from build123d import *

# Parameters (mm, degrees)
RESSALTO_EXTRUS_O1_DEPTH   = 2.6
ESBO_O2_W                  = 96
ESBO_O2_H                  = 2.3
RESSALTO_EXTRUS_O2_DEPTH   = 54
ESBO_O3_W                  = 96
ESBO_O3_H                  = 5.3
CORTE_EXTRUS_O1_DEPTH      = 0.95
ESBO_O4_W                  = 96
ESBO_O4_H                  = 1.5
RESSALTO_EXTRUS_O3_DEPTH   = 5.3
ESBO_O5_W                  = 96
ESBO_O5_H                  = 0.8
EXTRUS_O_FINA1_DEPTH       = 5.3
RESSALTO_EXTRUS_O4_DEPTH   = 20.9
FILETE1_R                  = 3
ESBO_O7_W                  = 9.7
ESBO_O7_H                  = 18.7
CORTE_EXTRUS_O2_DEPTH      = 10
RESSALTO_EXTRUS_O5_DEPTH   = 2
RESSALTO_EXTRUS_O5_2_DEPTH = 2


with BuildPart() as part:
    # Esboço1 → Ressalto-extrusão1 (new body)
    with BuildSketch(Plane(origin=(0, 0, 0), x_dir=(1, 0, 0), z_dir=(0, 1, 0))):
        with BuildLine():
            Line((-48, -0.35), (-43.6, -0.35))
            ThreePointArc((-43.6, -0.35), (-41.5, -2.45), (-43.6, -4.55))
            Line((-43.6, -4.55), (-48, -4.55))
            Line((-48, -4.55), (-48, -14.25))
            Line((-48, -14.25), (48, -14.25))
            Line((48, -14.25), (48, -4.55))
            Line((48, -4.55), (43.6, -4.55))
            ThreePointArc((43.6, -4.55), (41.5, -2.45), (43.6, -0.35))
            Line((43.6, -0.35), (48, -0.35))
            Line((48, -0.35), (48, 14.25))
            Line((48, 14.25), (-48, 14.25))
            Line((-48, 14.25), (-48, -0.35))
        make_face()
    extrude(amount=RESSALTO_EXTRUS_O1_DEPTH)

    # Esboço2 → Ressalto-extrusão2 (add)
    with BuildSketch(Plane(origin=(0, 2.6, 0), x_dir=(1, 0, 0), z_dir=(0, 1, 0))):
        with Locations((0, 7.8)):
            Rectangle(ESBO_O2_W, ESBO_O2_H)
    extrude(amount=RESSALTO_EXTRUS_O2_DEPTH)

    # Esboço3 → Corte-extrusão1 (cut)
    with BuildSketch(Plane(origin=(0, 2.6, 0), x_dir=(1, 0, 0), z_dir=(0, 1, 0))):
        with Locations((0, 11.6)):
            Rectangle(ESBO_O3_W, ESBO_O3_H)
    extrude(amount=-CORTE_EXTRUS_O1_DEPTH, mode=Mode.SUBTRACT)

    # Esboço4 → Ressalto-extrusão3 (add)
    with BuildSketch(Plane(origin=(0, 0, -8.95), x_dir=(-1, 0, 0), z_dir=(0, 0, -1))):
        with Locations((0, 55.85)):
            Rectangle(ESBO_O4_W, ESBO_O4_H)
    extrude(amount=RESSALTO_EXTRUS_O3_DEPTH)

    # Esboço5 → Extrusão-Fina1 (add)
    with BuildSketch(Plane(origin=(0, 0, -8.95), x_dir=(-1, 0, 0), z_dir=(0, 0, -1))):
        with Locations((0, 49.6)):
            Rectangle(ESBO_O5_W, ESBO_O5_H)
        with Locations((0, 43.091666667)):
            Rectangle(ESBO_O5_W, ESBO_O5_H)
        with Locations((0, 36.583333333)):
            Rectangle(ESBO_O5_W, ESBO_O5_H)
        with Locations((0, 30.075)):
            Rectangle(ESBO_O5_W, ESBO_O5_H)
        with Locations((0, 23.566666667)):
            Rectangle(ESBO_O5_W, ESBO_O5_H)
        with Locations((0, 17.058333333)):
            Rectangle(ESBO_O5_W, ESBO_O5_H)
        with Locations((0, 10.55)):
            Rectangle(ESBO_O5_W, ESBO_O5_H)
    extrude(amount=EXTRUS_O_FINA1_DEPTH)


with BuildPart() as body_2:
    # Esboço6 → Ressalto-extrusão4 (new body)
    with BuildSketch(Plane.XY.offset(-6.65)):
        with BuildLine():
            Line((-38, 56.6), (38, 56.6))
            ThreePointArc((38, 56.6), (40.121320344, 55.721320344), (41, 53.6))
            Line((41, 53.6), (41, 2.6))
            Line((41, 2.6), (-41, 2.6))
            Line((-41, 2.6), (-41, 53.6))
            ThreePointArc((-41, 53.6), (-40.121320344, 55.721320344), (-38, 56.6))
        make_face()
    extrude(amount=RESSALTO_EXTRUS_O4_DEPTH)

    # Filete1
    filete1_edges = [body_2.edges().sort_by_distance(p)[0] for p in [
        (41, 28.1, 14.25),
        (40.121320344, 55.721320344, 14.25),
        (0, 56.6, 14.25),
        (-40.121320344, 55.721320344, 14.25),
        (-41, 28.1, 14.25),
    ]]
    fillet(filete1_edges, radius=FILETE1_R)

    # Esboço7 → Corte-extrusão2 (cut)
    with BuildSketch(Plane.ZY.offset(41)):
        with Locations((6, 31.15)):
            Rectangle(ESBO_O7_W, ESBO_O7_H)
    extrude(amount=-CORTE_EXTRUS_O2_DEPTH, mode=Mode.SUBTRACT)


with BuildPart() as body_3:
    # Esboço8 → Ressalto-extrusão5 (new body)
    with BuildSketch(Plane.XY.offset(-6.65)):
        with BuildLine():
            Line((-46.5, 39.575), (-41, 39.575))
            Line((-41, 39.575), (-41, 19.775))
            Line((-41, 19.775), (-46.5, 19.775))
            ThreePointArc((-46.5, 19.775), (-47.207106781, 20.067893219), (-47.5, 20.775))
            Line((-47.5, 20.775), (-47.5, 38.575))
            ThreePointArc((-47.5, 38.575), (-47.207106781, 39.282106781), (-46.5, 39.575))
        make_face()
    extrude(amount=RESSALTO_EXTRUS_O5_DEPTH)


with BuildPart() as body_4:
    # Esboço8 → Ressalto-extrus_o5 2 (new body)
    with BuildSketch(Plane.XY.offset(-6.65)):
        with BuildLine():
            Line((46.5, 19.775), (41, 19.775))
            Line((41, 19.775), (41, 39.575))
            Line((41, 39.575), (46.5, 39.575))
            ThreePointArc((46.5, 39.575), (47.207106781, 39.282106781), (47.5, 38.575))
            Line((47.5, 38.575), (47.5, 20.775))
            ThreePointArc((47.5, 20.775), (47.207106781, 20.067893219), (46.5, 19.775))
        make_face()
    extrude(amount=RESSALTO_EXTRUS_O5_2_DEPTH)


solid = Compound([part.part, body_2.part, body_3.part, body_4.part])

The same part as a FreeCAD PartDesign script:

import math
import FreeCAD as App
import Part
import Sketcher

V = App.Vector


def edges_at(feature, points):
    """Names of the edges that pass closest to the given points."""
    edges = feature.Shape.Edges
    near = lambda p: min(range(len(edges)), key=lambda i: edges[i].distToShape(Part.Vertex(*p))[0])
    return sorted({f"Edge{near(p) + 1}" for p in points})


def add_polygon(sketch, points):
    """Adds a closed chain of lines whose ends are joined by coincident constraints."""
    first, n = sketch.GeometryCount, len(points)
    for a, b in zip(points, points[1:] + points[:1]):
        sketch.addGeometry(Part.LineSegment(App.Vector(*a, 0), App.Vector(*b, 0)), False)
    for i in range(n):
        sketch.addConstraint(Sketcher.Constraint("Coincident", first + i, 2, first + (i + 1) % n, 1))

doc = App.newDocument("Part")
body = doc.addObject("PartDesign::Body", "Body")

# Sketch on XZ plane
sketch1 = body.newObject("Sketcher::SketchObject", "Sketch")
sketch1.AttachmentSupport = (doc.getObject("XZ_Plane"), [""])
sketch1.MapMode = "FlatFace"
sketch1.addGeometry([
    Part.LineSegment(V(-48, 0.3, 0), V(-43.6, 0.3, 0)),  # 0
    Part.ArcOfCircle(Part.Circle(V(-43.6, 2.5, 0), V(0, 0, 1), 2.1), math.radians(-90), math.radians(90)),  # 1
    Part.LineSegment(V(-43.6, 4.5, 0), V(-48, 4.5, 0)),  # 2
    Part.LineSegment(V(-48, 4.5, 0), V(-48, 14.2, 0)),  # 3
    Part.LineSegment(V(-48, 14.2, 0), V(48, 14.2, 0)),  # 4
    Part.LineSegment(V(48, 14.2, 0), V(48, 4.5, 0)),  # 5
    Part.LineSegment(V(48, 4.5, 0), V(43.6, 4.5, 0)),  # 6
    Part.ArcOfCircle(Part.Circle(V(43.6, 2.5, 0), V(0, 0, 1), 2.1), math.radians(90), math.radians(270)),  # 7
    Part.LineSegment(V(43.6, 0.3, 0), V(48, 0.3, 0)),  # 8
    Part.LineSegment(V(48, 0.3, 0), V(48, -14.2, 0)),  # 9
    Part.LineSegment(V(48, -14.2, 0), V(-48, -14.2, 0)),  # 10
    Part.LineSegment(V(-48, -14.2, 0), V(-48, 0.3, 0)),  # 11
], False)
sketch1.addConstraint([
    Sketcher.Constraint("Tangent", 0, 2, 1, 1),
    Sketcher.Constraint("Tangent", 1, 2, 2, 1),
    Sketcher.Constraint("Coincident", 2, 2, 3, 1),
    Sketcher.Constraint("Coincident", 3, 2, 4, 1),
    Sketcher.Constraint("Coincident", 4, 2, 5, 1),
    Sketcher.Constraint("Coincident", 5, 2, 6, 1),
    Sketcher.Constraint("Tangent", 6, 2, 7, 1),
    Sketcher.Constraint("Tangent", 7, 2, 8, 1),
    Sketcher.Constraint("Coincident", 8, 2, 9, 1),
    Sketcher.Constraint("Coincident", 9, 2, 10, 1),
    Sketcher.Constraint("Coincident", 10, 2, 11, 1),
    Sketcher.Constraint("Coincident", 11, 2, 0, 1),
    Sketcher.Constraint("Horizontal", 0),
    Sketcher.Constraint("Horizontal", 2),
    Sketcher.Constraint("Vertical", 3),
    Sketcher.Constraint("Horizontal", 4),
    Sketcher.Constraint("Vertical", 5),
    Sketcher.Constraint("Horizontal", 6),
    Sketcher.Constraint("Horizontal", 8),
    Sketcher.Constraint("Vertical", 9),
    Sketcher.Constraint("Horizontal", 10),
    Sketcher.Constraint("Vertical", 11),
    Sketcher.Constraint("Equal", 1, 7),
    Sketcher.Constraint("Symmetric", 3, 2, 9, 2, -1, 1),
    Sketcher.Constraint("Symmetric", 1, 3, 7, 3, -2),
    Sketcher.Constraint("Vertical", 5, 2, 8, 2),
    Sketcher.Constraint("Vertical", 3, 2, 10, 2),
    Sketcher.Constraint("Radius", 1, 2.1),
    Sketcher.Constraint("DistanceX", 4, 1, 4, 2, 96.0),
    Sketcher.Constraint("DistanceX", 0, 1, 0, 2, 4.4),
    Sketcher.Constraint("DistanceY", 3, 1, 3, 2, 9.7),
    Sketcher.Constraint("DistanceY", 9, 2, 9, 1, 14.6),
])
pad1 = body.newObject("PartDesign::Pad", "Pad")
pad1.Profile = sketch1
pad1.Length = 2.6
pad1.Reversed = True

# Sketch on XZ plane
sketch2 = body.newObject("Sketcher::SketchObject", "Sketch001")
sketch2.AttachmentSupport = (doc.getObject("XZ_Plane"), [""])
sketch2.MapMode = "FlatFace"
sketch2.AttachmentOffset = App.Placement(V(0, 0, -2.6), App.Rotation())
add_polygon(sketch2, [(-48, -8.9), (-48, -6.7), (48, -6.7), (48, -8.9)])  # lines 0-3
sketch2.addConstraint([
    Sketcher.Constraint("Vertical", 0),
    Sketcher.Constraint("Horizontal", 1),
    Sketcher.Constraint("Vertical", 2),
    Sketcher.Constraint("Horizontal", 3),
    Sketcher.Constraint("DistanceX", 1, 1, 1, 2, 96.0),
    Sketcher.Constraint("DistanceY", 0, 1, 0, 2, 2.3),
    Sketcher.Constraint("DistanceX", 0, 2, -1, 1, 48.0),
    Sketcher.Constraint("DistanceY", 0, 2, -1, 1, 6.65),
])
pad2 = body.newObject("PartDesign::Pad", "Pad001")
pad2.Profile = sketch2
pad2.Length = 54
pad2.Reversed = True

# Sketch on XZ plane
sketch3 = body.newObject("Sketcher::SketchObject", "Sketch002")
sketch3.AttachmentSupport = (doc.getObject("XZ_Plane"), [""])
sketch3.MapMode = "FlatFace"
sketch3.AttachmentOffset = App.Placement(V(0, 0, -2.6), App.Rotation())
add_polygon(sketch3, [(-48, -14), (-48, -9), (48, -9), (48, -14)])  # lines 0-3
sketch3.addConstraint([
    Sketcher.Constraint("Vertical", 0),
    Sketcher.Constraint("Horizontal", 1),
    Sketcher.Constraint("Vertical", 2),
    Sketcher.Constraint("Horizontal", 3),
    Sketcher.Constraint("DistanceX", 1, 1, 1, 2, 96.0),
    Sketcher.Constraint("DistanceY", 0, 1, 0, 2, 5.3),
    Sketcher.Constraint("DistanceX", 0, 2, -1, 1, 48.0),
    Sketcher.Constraint("DistanceY", 0, 2, -1, 1, 8.95),
])
pocket1 = body.newObject("PartDesign::Pocket", "Pocket")
pocket1.Profile = sketch3
pocket1.Length = 0.95
pocket1.Reversed = True

# Sketch on XY plane
sketch4 = body.newObject("Sketcher::SketchObject", "Sketch003")
sketch4.AttachmentSupport = (doc.getObject("XY_Plane"), [""])
sketch4.MapMode = "FlatFace"
sketch4.AttachmentOffset = App.Placement(V(0, 0, -8.95), App.Rotation())
add_polygon(sketch4, [(48, 56.6), (48, 55.1), (-48, 55.1), (-48, 56.6)])  # lines 0-3
sketch4.addConstraint([
    Sketcher.Constraint("Vertical", 0),
    Sketcher.Constraint("Horizontal", 1),
    Sketcher.Constraint("Vertical", 2),
    Sketcher.Constraint("Horizontal", 3),
    Sketcher.Constraint("DistanceX", 1, 2, 1, 1, 96.0),
    Sketcher.Constraint("DistanceY", 0, 2, 0, 1, 1.5),
    Sketcher.Constraint("DistanceX", -1, 1, 0, 2, 48.0),
    Sketcher.Constraint("DistanceY", -1, 1, 0, 2, 55.1),
])
pad3 = body.newObject("PartDesign::Pad", "Pad002")
pad3.Profile = sketch4
pad3.Length = 5.3
pad3.Reversed = True

# Sketch on XY plane
sketch5 = body.newObject("Sketcher::SketchObject", "Sketch004")
sketch5.AttachmentSupport = (doc.getObject("XY_Plane"), [""])
sketch5.MapMode = "FlatFace"
sketch5.AttachmentOffset = App.Placement(V(0, 0, -8.95), App.Rotation())
add_polygon(sketch5, [(48, 50), (48, 49.2), (-48, 49.2), (-48, 50)])  # lines 0-3
add_polygon(sketch5, [(48, 43.5), (48, 42.7), (-48, 42.7), (-48, 43.5)])  # lines 4-7
add_polygon(sketch5, [(48, 37), (48, 36.2), (-48, 36.2), (-48, 37)])  # lines 8-11
add_polygon(sketch5, [(48, 30.5), (48, 29.7), (-48, 29.7), (-48, 30.5)])  # lines 12-15
add_polygon(sketch5, [(48, 24), (48, 23.2), (-48, 23.2), (-48, 24)])  # lines 16-19
add_polygon(sketch5, [(48, 17.5), (48, 16.7), (-48, 16.7), (-48, 17.5)])  # lines 20-23
add_polygon(sketch5, [(48, 10.9), (48, 10.2), (-48, 10.2), (-48, 10.9)])  # lines 24-27
sketch5.addConstraint([
    Sketcher.Constraint("Vertical", 0),
    Sketcher.Constraint("Horizontal", 1),
    Sketcher.Constraint("Vertical", 2),
    Sketcher.Constraint("Horizontal", 3),
    Sketcher.Constraint("Vertical", 4),
    Sketcher.Constraint("Horizontal", 5),
    Sketcher.Constraint("Vertical", 6),
    Sketcher.Constraint("Horizontal", 7),
    Sketcher.Constraint("Vertical", 8),
    Sketcher.Constraint("Horizontal", 9),
    Sketcher.Constraint("Vertical", 10),
    Sketcher.Constraint("Horizontal", 11),
    Sketcher.Constraint("Vertical", 12),
    Sketcher.Constraint("Horizontal", 13),
    Sketcher.Constraint("Vertical", 14),
    Sketcher.Constraint("Horizontal", 15),
    Sketcher.Constraint("Vertical", 16),
    Sketcher.Constraint("Horizontal", 17),
    Sketcher.Constraint("Vertical", 18),
    Sketcher.Constraint("Horizontal", 19),
    Sketcher.Constraint("Vertical", 20),
    Sketcher.Constraint("Horizontal", 21),
    Sketcher.Constraint("Vertical", 22),
    Sketcher.Constraint("Horizontal", 23),
    Sketcher.Constraint("Vertical", 24),
    Sketcher.Constraint("Horizontal", 25),
    Sketcher.Constraint("Vertical", 26),
    Sketcher.Constraint("Horizontal", 27),
    Sketcher.Constraint("Vertical", 3, 2, 4, 2),
    Sketcher.Constraint("Vertical", 2, 2, 5, 2),
    Sketcher.Constraint("Vertical", 7, 2, 8, 2),
    Sketcher.Constraint("Vertical", 6, 2, 9, 2),
    Sketcher.Constraint("Vertical", 11, 2, 12, 2),
    Sketcher.Constraint("Vertical", 10, 2, 13, 2),
    Sketcher.Constraint("Vertical", 15, 2, 16, 2),
    Sketcher.Constraint("Vertical", 14, 2, 17, 2),
    Sketcher.Constraint("Vertical", 19, 2, 20, 2),
    Sketcher.Constraint("Vertical", 18, 2, 21, 2),
    Sketcher.Constraint("Vertical", 23, 2, 24, 2),
    Sketcher.Constraint("Vertical", 22, 2, 25, 2),
    Sketcher.Constraint("Equal", 2, 4),
    Sketcher.Constraint("Equal", 6, 8),
    Sketcher.Constraint("Equal", 10, 12),
    Sketcher.Constraint("Equal", 14, 16),
    Sketcher.Constraint("Equal", 18, 20),
    Sketcher.Constraint("Equal", 22, 24),
    Sketcher.Constraint("DistanceX", 1, 2, 1, 1, 96.0),
    Sketcher.Constraint("DistanceY", 0, 2, 0, 1, 0.8),
    Sketcher.Constraint("DistanceX", -1, 1, 0, 2, 48.0),
    Sketcher.Constraint("DistanceY", -1, 1, 2, 2, 50.0),
    Sketcher.Constraint("DistanceY", -1, 1, 24, 2, 10.15),
    Sketcher.Constraint("DistanceY", -1, 1, 12, 2, 29.675),
    Sketcher.Constraint("DistanceY", 16, 2, 4, 2, 19.525),
    Sketcher.Constraint("DistanceY", 20, 2, 8, 2, 19.525),
    Sketcher.Constraint("DistanceY", -1, 1, 4, 2, 42.691667),
    Sketcher.Constraint("DistanceY", -1, 1, 8, 2, 36.183333),
])
pad4 = body.newObject("PartDesign::Pad", "Pad003")
pad4.Profile = sketch5
pad4.Length = 5.3
pad4.Reversed = True
body2 = doc.addObject("PartDesign::Body", "Body001")

# Sketch on XY plane
sketch6 = body2.newObject("Sketcher::SketchObject", "Sketch005")
sketch6.AttachmentSupport = (doc.getObject("XY_Plane001"), [""])
sketch6.MapMode = "FlatFace"
sketch6.AttachmentOffset = App.Placement(V(0, 0, -6.65), App.Rotation())
sketch6.addGeometry([
    Part.LineSegment(V(38, 56.6, 0), V(-38, 56.6, 0)),  # 0
    Part.ArcOfCircle(Part.Circle(V(-38, 53.6, 0), V(0, 0, 1), 3), math.radians(90), math.radians(180)),  # 1
    Part.LineSegment(V(-41, 53.6, 0), V(-41, 2.6, 0)),  # 2
    Part.LineSegment(V(-41, 2.6, 0), V(41, 2.6, 0)),  # 3
    Part.LineSegment(V(41, 2.6, 0), V(41, 53.6, 0)),  # 4
    Part.ArcOfCircle(Part.Circle(V(38, 53.6, 0), V(0, 0, 1), 3), math.radians(0), math.radians(90)),  # 5
], False)
sketch6.addConstraint([
    Sketcher.Constraint("Tangent", 0, 2, 1, 1),
    Sketcher.Constraint("Tangent", 1, 2, 2, 1),
    Sketcher.Constraint("Coincident", 2, 2, 3, 1),
    Sketcher.Constraint("Coincident", 3, 2, 4, 1),
    Sketcher.Constraint("Tangent", 4, 2, 5, 1),
    Sketcher.Constraint("Tangent", 5, 2, 0, 1),
    Sketcher.Constraint("Horizontal", 0),
    Sketcher.Constraint("Vertical", 2),
    Sketcher.Constraint("Horizontal", 3),
    Sketcher.Constraint("Vertical", 4),
    Sketcher.Constraint("Equal", 1, 5),
    Sketcher.Constraint("Radius", 1, 3.0),
    Sketcher.Constraint("DistanceX", 0, 2, 0, 1, 76.0),
    Sketcher.Constraint("DistanceY", 2, 2, 2, 1, 51.0),
    Sketcher.Constraint("DistanceX", 1, 3, -1, 1, 38.0),
    Sketcher.Constraint("DistanceY", -1, 1, 1, 3, 53.6),
])
pad5 = body2.newObject("PartDesign::Pad", "Pad004")
pad5.Profile = sketch6
pad5.Length = 20.9
doc.recompute()

fillet = body2.newObject("PartDesign::Fillet", "Fillet")
fillet.Base = (pad5, edges_at(pad5, [
    (41, 28.1, 14.25),
    (40.121, 55.721, 14.25),
    (0, 56.6, 14.25),
    (-40.121, 55.721, 14.25),
    (-41, 28.1, 14.25),
]))
fillet.Radius = 3

# Sketch on YZ plane
sketch7 = body2.newObject("Sketcher::SketchObject", "Sketch006")
sketch7.AttachmentSupport = (doc.getObject("YZ_Plane001"), [""])
sketch7.MapMode = "FlatFace"
sketch7.AttachmentOffset = App.Placement(V(0, 0, -41), App.Rotation())
add_polygon(sketch7, [(40, 1), (22, 1), (22, 11), (40, 11)])  # lines 0-3
sketch7.addConstraint([
    Sketcher.Constraint("Horizontal", 0),
    Sketcher.Constraint("Vertical", 1),
    Sketcher.Constraint("Horizontal", 2),
    Sketcher.Constraint("Vertical", 3),
    Sketcher.Constraint("DistanceX", 0, 2, 0, 1, 18.7),
    Sketcher.Constraint("DistanceY", 1, 1, 1, 2, 9.7),
    Sketcher.Constraint("DistanceX", -1, 1, 0, 2, 21.8),
    Sketcher.Constraint("DistanceY", -1, 1, 0, 2, 1.15),
])
pocket2 = body2.newObject("PartDesign::Pocket", "Pocket001")
pocket2.Profile = sketch7
pocket2.Length = 10
pocket2.Reversed = True
body3 = doc.addObject("PartDesign::Body", "Body002")

# Sketch on XY plane
sketch8 = body3.newObject("Sketcher::SketchObject", "Sketch007")
sketch8.AttachmentSupport = (doc.getObject("XY_Plane002"), [""])
sketch8.MapMode = "FlatFace"
sketch8.AttachmentOffset = App.Placement(V(0, 0, -6.65), App.Rotation())
sketch8.addGeometry([
    Part.LineSegment(V(-41, 39.6, 0), V(-46.5, 39.6, 0)),  # 0
    Part.ArcOfCircle(Part.Circle(V(-46.5, 38.6, 0), V(0, 0, 1), 1), math.radians(90), math.radians(180)),  # 1
    Part.LineSegment(V(-47.5, 38.6, 0), V(-47.5, 20.8, 0)),  # 2
    Part.ArcOfCircle(Part.Circle(V(-46.5, 20.8, 0), V(0, 0, 1), 1), math.radians(-180), math.radians(-90)),  # 3
    Part.LineSegment(V(-46.5, 19.8, 0), V(-41, 19.8, 0)),  # 4
    Part.LineSegment(V(-41, 19.8, 0), V(-41, 39.6, 0)),  # 5
], False)
sketch8.addConstraint([
    Sketcher.Constraint("Tangent", 0, 2, 1, 1),
    Sketcher.Constraint("Tangent", 1, 2, 2, 1),
    Sketcher.Constraint("Tangent", 2, 2, 3, 1),
    Sketcher.Constraint("Tangent", 3, 2, 4, 1),
    Sketcher.Constraint("Coincident", 4, 2, 5, 1),
    Sketcher.Constraint("Coincident", 5, 2, 0, 1),
    Sketcher.Constraint("Horizontal", 0),
    Sketcher.Constraint("Vertical", 2),
    Sketcher.Constraint("Horizontal", 4),
    Sketcher.Constraint("Vertical", 5),
    Sketcher.Constraint("Equal", 1, 3),
    Sketcher.Constraint("Radius", 1, 1.0),
    Sketcher.Constraint("DistanceX", 0, 2, 0, 1, 5.5),
    Sketcher.Constraint("DistanceY", 2, 2, 2, 1, 17.8),
    Sketcher.Constraint("DistanceX", 4, 2, -1, 1, 41.0),
    Sketcher.Constraint("DistanceY", -1, 1, 1, 3, 38.575),
])
pad6 = body3.newObject("PartDesign::Pad", "Pad005")
pad6.Profile = sketch8
pad6.Length = 2
body4 = doc.addObject("PartDesign::Body", "Body003")

# Sketch on XY plane
sketch9 = body4.newObject("Sketcher::SketchObject", "Sketch008")
sketch9.AttachmentSupport = (doc.getObject("XY_Plane003"), [""])
sketch9.MapMode = "FlatFace"
sketch9.AttachmentOffset = App.Placement(V(0, 0, -6.65), App.Rotation())
sketch9.addGeometry([
    Part.LineSegment(V(41, 19.8, 0), V(46.5, 19.8, 0)),  # 0
    Part.ArcOfCircle(Part.Circle(V(46.5, 20.8, 0), V(0, 0, 1), 1), math.radians(-90), math.radians(0)),  # 1
    Part.LineSegment(V(47.5, 20.8, 0), V(47.5, 38.6, 0)),  # 2
    Part.ArcOfCircle(Part.Circle(V(46.5, 38.6, 0), V(0, 0, 1), 1), math.radians(0), math.radians(90)),  # 3
    Part.LineSegment(V(46.5, 39.6, 0), V(41, 39.6, 0)),  # 4
    Part.LineSegment(V(41, 39.6, 0), V(41, 19.8, 0)),  # 5
], False)
sketch9.addConstraint([
    Sketcher.Constraint("Tangent", 0, 2, 1, 1),
    Sketcher.Constraint("Tangent", 1, 2, 2, 1),
    Sketcher.Constraint("Tangent", 2, 2, 3, 1),
    Sketcher.Constraint("Tangent", 3, 2, 4, 1),
    Sketcher.Constraint("Coincident", 4, 2, 5, 1),
    Sketcher.Constraint("Coincident", 5, 2, 0, 1),
    Sketcher.Constraint("Horizontal", 0),
    Sketcher.Constraint("Vertical", 2),
    Sketcher.Constraint("Horizontal", 4),
    Sketcher.Constraint("Vertical", 5),
    Sketcher.Constraint("Equal", 1, 3),
    Sketcher.Constraint("Radius", 1, 1.0),
    Sketcher.Constraint("DistanceX", 0, 1, 0, 2, 5.5),
    Sketcher.Constraint("DistanceY", 2, 1, 2, 2, 17.8),
    Sketcher.Constraint("DistanceX", -1, 1, 4, 2, 41.0),
    Sketcher.Constraint("DistanceY", -1, 1, 1, 3, 20.775),
])
pad7 = body4.newObject("PartDesign::Pad", "Pad006")
pad7.Profile = sketch9
pad7.Length = 2

doc.recompute()
